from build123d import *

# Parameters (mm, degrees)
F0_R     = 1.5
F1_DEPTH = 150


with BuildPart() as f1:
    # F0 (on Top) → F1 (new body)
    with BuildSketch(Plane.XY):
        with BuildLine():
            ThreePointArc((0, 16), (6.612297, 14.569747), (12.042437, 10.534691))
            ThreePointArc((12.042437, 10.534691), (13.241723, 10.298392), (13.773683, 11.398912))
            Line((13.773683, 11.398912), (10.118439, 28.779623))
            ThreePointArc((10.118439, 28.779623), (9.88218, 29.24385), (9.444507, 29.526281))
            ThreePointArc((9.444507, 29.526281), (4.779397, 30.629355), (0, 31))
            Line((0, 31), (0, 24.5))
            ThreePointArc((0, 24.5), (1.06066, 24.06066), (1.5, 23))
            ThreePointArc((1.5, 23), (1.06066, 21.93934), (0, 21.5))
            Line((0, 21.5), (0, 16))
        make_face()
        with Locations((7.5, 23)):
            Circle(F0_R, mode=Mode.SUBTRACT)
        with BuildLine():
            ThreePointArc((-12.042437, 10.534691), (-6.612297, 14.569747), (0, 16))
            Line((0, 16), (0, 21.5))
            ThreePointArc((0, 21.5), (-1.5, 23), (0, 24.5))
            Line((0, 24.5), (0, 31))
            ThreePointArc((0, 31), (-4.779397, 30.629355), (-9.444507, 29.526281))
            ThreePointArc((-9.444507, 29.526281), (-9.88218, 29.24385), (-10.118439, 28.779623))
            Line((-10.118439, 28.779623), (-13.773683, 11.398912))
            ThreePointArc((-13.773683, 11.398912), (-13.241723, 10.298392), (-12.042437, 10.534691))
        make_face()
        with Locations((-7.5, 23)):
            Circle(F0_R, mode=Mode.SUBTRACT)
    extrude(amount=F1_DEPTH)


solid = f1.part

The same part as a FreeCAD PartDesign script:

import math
import FreeCAD as App
import Part
import Sketcher
Q = App.Units.Quantity

doc = App.newDocument("Part")
params = doc.addObject("Spreadsheet::Sheet", "Params")
for row, (alias, value) in enumerate([
    ("sketch1_diameter", "3 mm"),
    ("sketch1_diameter2", "3 mm"),
    ("sketch1_radius", "16.000001 mm"),
    ("sketch1_radius2", "1 mm"),
    ("sketch1_radius3", "0.999999 mm"),
    ("pad1_length", "150 mm"),
], start=1):
    params.set(f"A{row}", alias)
    params.set(f"B{row}", "=" + value)
    params.setAlias(f"B{row}", alias)

body = doc.addObject("PartDesign::Body", "Body")

# Sketch on XY plane
sketch1 = body.newObject("Sketcher::SketchObject", "Sketch")
sketch1.AttachmentSupport = (doc.getObject("XY_Plane"), [""])
sketch1.MapMode = "FlatFace"
sketch1.addGeometry([
    Part.ArcOfCircle(Part.Circle(App.Vector(0, -0.000001, 0), App.Vector(0, 0, 1), 16.000001), math.radians(41.179347), math.radians(89.999999)),  # 0
    Part.ArcOfCircle(Part.Circle(App.Vector(12.795089, 11.193109, 0), App.Vector(0, 0, 1), 1), math.radians(-138.820666), math.radians(11.876506)),  # 1
    Part.LineSegment(App.Vector(13.773683, 11.398912, 0), App.Vector(10.118439, 28.779623, 0)),  # 2
    Part.ArcOfCircle(Part.Circle(App.Vector(9.139846, 28.573821, 0), App.Vector(0, 0, 1), 0.999999), math.radians(11.876459), math.radians(72.262232)),  # 3
    Part.ArcOfCircle(Part.Circle(App.Vector(0.000006, 0.000043, 0), App.Vector(0, 0, 1), 30.999957), math.radians(72.262185), math.radians(90.000011)),  # 4
    Part.ArcOfCircle(Part.Circle(App.Vector(-0.000006, 0.000043, 0), App.Vector(0, 0, 1), 30.999957), math.radians(89.999989), math.radians(107.737815)),  # 5
    Part.ArcOfCircle(Part.Circle(App.Vector(-9.139846, 28.573821, 0), App.Vector(0, 0, 1), 0.999999), math.radians(107.737768), math.radians(168.123541)),  # 6
    Part.LineSegment(App.Vector(-10.118439, 28.779623, 0), App.Vector(-13.773683, 11.398912, 0)),  # 7
    Part.ArcOfCircle(Part.Circle(App.Vector(-12.795089, 11.193109, 0), App.Vector(0, 0, 1), 1), math.radians(168.123494), math.radians(318.820666)),  # 8
    Part.ArcOfCircle(Part.Circle(App.Vector(0, -0.000001, 0), App.Vector(0, 0, 1), 16.000001), math.radians(90.000001), math.radians(138.820653)),  # 9
    Part.Circle(App.Vector(-7.5, 23, 0), App.Vector(0, 0, 1), 1.5),  # 10
    Part.ArcOfCircle(Part.Circle(App.Vector(-0.000001, 23.000001, 0), App.Vector(0, 0, 1), 1.500001), math.radians(-89.999978), math.radians(-0.000022)),  # 11
    Part.ArcOfCircle(Part.Circle(App.Vector(0, 23, 0), App.Vector(0, 0, 1), 1.5), math.radians(90), math.radians(270)),  # 12
    Part.ArcOfCircle(Part.Circle(App.Vector(-0.000001, 22.999999, 0), App.Vector(0, 0, 1), 1.500001), math.radians(0.000022), math.radians(89.999978)),  # 13
    Part.Circle(App.Vector(7.5, 23, 0), App.Vector(0, 0, 1), 1.5),  # 14
], False)
sketch1.addConstraint([
    Sketcher.Constraint("Coincident", 0, 1, 1, 1),
    Sketcher.Constraint("Coincident", 1, 2, 2, 1),
    Sketcher.Constraint("Coincident", 2, 2, 3, 1),
    Sketcher.Constraint("Coincident", 3, 2, 4, 1),
    Sketcher.Constraint("Coincident", 4, 2, 5, 1),
    Sketcher.Constraint("Coincident", 5, 2, 6, 1),
    Sketcher.Constraint("Coincident", 6, 2, 7, 1),
    Sketcher.Constraint("Coincident", 7, 2, 8, 1),
    Sketcher.Constraint("Coincident", 8, 2, 9, 2),
    Sketcher.Constraint("Coincident", 9, 1, 0, 2),
    Sketcher.Constraint("Coincident", 11, 1, 12, 2),
    Sketcher.Constraint("Coincident", 12, 1, 13, 2),
    Sketcher.Constraint("Coincident", 13, 1, 11, 2),
    Sketcher.Constraint("Coincident", 0, 3, -1, 1),
    Sketcher.Constraint("Coincident", 9, 3, -1, 1),
    Sketcher.Constraint("Coincident", 12, 3, 11, 3),
    Sketcher.Constraint("PointOnObject", 11, 3, -2),
    Sketcher.Constraint("PointOnObject", 13, 3, -2),
    Sketcher.Constraint("PointOnObject", 4, 2, -2),
    Sketcher.Constraint("PointOnObject", 9, 1, -2),
    Sketcher.Constraint("PointOnObject", 11, 1, -2),
    Sketcher.Constraint("PointOnObject", 12, 1, -2),
    Sketcher.Constraint("Diameter", 10, Q("3 mm")),
    Sketcher.Constraint("Diameter", 14, Q("3 mm")),
    Sketcher.Constraint("Radius", 0, Q("16.000001 mm")),
    Sketcher.Constraint("Radius", 1, Q("1 mm")),
    Sketcher.Constraint("Radius", 3, Q("0.999999 mm")),
    Sketcher.Constraint("Radius", 6, Q("0.999999 mm")),
    Sketcher.Constraint("Radius", 8, Q("1 mm")),
    Sketcher.Constraint("Radius", 11, Q("1.500001 mm")),
    Sketcher.Constraint("DistanceY", -1, 1, 10, 3, Q("23 mm")),
    Sketcher.Constraint("DistanceY", -1, 1, 11, 3, Q("23.000001 mm")),
    Sketcher.Constraint("DistanceY", -1, 1, 14, 3, Q("23 mm")),
    Sketcher.Constraint("DistanceY", -1, 1, 4, 2, Q("31 mm")),
    Sketcher.Constraint("DistanceY", -1, 1, 13, 1, Q("23 mm")),
    Sketcher.Constraint("DistanceX", 10, 3, -1, 1, Q("7.5 mm")),
    Sketcher.Constraint("DistanceX", -1, 1, 14, 3, Q("7.5 mm")),
    Sketcher.Constraint("Radius", 4, Q("30.999957 mm")),
    Sketcher.Constraint("Radius", 5, Q("30.999957 mm")),
    Sketcher.Constraint("DistanceY", 3, 3, 2, 2, Q("0.205802 mm")),
    Sketcher.Constraint("DistanceY", 6, 3, 6, 2, Q("0.205802 mm")),
    Sketcher.Constraint("Distance", 2, Q("17.76091 mm")),
    Sketcher.Constraint("Distance", 7, Q("17.76091 mm")),
    Sketcher.Constraint("DistanceX", -1, 1, 1, 3, Q("12.795089 mm")),
    Sketcher.Constraint("DistanceY", -1, 1, 3, 3, Q("28.573821 mm")),
    Sketcher.Constraint("DistanceY", -1, 1, 6, 3, Q("28.573821 mm")),
    Sketcher.Constraint("DistanceX", 8, 3, -1, 1, Q("12.795089 mm")),
    Sketcher.Constraint("DistanceY", -1, 1, 0, 1, Q("10.534691 mm")),
    Sketcher.Constraint("DistanceX", -1, 1, 2, 2, Q("10.118439 mm")),
    Sketcher.Constraint("DistanceY", -1, 1, 3, 2, Q("29.526281 mm")),
    Sketcher.Constraint("DistanceY", -1, 1, 5, 2, Q("29.526281 mm")),
    Sketcher.Constraint("DistanceX", 6, 2, -1, 1, Q("10.118439 mm")),
    Sketcher.Constraint("DistanceY", -1, 1, 8, 2, Q("10.534691 mm")),
])
sketch1.setExpression("Constraints[22]", "Params.sketch1_diameter")
sketch1.setExpression("Constraints[23]", "Params.sketch1_diameter2")
sketch1.setExpression("Constraints[24]", "Params.sketch1_radius")
sketch1.setExpression("Constraints[25]", "Params.sketch1_radius2")
sketch1.setExpression("Constraints[26]", "Params.sketch1_radius3")
pad1 = body.newObject("PartDesign::Pad", "Pad")
pad1.Profile = sketch1
pad1.setExpression("Length", "Params.pad1_length")

doc.recompute()
